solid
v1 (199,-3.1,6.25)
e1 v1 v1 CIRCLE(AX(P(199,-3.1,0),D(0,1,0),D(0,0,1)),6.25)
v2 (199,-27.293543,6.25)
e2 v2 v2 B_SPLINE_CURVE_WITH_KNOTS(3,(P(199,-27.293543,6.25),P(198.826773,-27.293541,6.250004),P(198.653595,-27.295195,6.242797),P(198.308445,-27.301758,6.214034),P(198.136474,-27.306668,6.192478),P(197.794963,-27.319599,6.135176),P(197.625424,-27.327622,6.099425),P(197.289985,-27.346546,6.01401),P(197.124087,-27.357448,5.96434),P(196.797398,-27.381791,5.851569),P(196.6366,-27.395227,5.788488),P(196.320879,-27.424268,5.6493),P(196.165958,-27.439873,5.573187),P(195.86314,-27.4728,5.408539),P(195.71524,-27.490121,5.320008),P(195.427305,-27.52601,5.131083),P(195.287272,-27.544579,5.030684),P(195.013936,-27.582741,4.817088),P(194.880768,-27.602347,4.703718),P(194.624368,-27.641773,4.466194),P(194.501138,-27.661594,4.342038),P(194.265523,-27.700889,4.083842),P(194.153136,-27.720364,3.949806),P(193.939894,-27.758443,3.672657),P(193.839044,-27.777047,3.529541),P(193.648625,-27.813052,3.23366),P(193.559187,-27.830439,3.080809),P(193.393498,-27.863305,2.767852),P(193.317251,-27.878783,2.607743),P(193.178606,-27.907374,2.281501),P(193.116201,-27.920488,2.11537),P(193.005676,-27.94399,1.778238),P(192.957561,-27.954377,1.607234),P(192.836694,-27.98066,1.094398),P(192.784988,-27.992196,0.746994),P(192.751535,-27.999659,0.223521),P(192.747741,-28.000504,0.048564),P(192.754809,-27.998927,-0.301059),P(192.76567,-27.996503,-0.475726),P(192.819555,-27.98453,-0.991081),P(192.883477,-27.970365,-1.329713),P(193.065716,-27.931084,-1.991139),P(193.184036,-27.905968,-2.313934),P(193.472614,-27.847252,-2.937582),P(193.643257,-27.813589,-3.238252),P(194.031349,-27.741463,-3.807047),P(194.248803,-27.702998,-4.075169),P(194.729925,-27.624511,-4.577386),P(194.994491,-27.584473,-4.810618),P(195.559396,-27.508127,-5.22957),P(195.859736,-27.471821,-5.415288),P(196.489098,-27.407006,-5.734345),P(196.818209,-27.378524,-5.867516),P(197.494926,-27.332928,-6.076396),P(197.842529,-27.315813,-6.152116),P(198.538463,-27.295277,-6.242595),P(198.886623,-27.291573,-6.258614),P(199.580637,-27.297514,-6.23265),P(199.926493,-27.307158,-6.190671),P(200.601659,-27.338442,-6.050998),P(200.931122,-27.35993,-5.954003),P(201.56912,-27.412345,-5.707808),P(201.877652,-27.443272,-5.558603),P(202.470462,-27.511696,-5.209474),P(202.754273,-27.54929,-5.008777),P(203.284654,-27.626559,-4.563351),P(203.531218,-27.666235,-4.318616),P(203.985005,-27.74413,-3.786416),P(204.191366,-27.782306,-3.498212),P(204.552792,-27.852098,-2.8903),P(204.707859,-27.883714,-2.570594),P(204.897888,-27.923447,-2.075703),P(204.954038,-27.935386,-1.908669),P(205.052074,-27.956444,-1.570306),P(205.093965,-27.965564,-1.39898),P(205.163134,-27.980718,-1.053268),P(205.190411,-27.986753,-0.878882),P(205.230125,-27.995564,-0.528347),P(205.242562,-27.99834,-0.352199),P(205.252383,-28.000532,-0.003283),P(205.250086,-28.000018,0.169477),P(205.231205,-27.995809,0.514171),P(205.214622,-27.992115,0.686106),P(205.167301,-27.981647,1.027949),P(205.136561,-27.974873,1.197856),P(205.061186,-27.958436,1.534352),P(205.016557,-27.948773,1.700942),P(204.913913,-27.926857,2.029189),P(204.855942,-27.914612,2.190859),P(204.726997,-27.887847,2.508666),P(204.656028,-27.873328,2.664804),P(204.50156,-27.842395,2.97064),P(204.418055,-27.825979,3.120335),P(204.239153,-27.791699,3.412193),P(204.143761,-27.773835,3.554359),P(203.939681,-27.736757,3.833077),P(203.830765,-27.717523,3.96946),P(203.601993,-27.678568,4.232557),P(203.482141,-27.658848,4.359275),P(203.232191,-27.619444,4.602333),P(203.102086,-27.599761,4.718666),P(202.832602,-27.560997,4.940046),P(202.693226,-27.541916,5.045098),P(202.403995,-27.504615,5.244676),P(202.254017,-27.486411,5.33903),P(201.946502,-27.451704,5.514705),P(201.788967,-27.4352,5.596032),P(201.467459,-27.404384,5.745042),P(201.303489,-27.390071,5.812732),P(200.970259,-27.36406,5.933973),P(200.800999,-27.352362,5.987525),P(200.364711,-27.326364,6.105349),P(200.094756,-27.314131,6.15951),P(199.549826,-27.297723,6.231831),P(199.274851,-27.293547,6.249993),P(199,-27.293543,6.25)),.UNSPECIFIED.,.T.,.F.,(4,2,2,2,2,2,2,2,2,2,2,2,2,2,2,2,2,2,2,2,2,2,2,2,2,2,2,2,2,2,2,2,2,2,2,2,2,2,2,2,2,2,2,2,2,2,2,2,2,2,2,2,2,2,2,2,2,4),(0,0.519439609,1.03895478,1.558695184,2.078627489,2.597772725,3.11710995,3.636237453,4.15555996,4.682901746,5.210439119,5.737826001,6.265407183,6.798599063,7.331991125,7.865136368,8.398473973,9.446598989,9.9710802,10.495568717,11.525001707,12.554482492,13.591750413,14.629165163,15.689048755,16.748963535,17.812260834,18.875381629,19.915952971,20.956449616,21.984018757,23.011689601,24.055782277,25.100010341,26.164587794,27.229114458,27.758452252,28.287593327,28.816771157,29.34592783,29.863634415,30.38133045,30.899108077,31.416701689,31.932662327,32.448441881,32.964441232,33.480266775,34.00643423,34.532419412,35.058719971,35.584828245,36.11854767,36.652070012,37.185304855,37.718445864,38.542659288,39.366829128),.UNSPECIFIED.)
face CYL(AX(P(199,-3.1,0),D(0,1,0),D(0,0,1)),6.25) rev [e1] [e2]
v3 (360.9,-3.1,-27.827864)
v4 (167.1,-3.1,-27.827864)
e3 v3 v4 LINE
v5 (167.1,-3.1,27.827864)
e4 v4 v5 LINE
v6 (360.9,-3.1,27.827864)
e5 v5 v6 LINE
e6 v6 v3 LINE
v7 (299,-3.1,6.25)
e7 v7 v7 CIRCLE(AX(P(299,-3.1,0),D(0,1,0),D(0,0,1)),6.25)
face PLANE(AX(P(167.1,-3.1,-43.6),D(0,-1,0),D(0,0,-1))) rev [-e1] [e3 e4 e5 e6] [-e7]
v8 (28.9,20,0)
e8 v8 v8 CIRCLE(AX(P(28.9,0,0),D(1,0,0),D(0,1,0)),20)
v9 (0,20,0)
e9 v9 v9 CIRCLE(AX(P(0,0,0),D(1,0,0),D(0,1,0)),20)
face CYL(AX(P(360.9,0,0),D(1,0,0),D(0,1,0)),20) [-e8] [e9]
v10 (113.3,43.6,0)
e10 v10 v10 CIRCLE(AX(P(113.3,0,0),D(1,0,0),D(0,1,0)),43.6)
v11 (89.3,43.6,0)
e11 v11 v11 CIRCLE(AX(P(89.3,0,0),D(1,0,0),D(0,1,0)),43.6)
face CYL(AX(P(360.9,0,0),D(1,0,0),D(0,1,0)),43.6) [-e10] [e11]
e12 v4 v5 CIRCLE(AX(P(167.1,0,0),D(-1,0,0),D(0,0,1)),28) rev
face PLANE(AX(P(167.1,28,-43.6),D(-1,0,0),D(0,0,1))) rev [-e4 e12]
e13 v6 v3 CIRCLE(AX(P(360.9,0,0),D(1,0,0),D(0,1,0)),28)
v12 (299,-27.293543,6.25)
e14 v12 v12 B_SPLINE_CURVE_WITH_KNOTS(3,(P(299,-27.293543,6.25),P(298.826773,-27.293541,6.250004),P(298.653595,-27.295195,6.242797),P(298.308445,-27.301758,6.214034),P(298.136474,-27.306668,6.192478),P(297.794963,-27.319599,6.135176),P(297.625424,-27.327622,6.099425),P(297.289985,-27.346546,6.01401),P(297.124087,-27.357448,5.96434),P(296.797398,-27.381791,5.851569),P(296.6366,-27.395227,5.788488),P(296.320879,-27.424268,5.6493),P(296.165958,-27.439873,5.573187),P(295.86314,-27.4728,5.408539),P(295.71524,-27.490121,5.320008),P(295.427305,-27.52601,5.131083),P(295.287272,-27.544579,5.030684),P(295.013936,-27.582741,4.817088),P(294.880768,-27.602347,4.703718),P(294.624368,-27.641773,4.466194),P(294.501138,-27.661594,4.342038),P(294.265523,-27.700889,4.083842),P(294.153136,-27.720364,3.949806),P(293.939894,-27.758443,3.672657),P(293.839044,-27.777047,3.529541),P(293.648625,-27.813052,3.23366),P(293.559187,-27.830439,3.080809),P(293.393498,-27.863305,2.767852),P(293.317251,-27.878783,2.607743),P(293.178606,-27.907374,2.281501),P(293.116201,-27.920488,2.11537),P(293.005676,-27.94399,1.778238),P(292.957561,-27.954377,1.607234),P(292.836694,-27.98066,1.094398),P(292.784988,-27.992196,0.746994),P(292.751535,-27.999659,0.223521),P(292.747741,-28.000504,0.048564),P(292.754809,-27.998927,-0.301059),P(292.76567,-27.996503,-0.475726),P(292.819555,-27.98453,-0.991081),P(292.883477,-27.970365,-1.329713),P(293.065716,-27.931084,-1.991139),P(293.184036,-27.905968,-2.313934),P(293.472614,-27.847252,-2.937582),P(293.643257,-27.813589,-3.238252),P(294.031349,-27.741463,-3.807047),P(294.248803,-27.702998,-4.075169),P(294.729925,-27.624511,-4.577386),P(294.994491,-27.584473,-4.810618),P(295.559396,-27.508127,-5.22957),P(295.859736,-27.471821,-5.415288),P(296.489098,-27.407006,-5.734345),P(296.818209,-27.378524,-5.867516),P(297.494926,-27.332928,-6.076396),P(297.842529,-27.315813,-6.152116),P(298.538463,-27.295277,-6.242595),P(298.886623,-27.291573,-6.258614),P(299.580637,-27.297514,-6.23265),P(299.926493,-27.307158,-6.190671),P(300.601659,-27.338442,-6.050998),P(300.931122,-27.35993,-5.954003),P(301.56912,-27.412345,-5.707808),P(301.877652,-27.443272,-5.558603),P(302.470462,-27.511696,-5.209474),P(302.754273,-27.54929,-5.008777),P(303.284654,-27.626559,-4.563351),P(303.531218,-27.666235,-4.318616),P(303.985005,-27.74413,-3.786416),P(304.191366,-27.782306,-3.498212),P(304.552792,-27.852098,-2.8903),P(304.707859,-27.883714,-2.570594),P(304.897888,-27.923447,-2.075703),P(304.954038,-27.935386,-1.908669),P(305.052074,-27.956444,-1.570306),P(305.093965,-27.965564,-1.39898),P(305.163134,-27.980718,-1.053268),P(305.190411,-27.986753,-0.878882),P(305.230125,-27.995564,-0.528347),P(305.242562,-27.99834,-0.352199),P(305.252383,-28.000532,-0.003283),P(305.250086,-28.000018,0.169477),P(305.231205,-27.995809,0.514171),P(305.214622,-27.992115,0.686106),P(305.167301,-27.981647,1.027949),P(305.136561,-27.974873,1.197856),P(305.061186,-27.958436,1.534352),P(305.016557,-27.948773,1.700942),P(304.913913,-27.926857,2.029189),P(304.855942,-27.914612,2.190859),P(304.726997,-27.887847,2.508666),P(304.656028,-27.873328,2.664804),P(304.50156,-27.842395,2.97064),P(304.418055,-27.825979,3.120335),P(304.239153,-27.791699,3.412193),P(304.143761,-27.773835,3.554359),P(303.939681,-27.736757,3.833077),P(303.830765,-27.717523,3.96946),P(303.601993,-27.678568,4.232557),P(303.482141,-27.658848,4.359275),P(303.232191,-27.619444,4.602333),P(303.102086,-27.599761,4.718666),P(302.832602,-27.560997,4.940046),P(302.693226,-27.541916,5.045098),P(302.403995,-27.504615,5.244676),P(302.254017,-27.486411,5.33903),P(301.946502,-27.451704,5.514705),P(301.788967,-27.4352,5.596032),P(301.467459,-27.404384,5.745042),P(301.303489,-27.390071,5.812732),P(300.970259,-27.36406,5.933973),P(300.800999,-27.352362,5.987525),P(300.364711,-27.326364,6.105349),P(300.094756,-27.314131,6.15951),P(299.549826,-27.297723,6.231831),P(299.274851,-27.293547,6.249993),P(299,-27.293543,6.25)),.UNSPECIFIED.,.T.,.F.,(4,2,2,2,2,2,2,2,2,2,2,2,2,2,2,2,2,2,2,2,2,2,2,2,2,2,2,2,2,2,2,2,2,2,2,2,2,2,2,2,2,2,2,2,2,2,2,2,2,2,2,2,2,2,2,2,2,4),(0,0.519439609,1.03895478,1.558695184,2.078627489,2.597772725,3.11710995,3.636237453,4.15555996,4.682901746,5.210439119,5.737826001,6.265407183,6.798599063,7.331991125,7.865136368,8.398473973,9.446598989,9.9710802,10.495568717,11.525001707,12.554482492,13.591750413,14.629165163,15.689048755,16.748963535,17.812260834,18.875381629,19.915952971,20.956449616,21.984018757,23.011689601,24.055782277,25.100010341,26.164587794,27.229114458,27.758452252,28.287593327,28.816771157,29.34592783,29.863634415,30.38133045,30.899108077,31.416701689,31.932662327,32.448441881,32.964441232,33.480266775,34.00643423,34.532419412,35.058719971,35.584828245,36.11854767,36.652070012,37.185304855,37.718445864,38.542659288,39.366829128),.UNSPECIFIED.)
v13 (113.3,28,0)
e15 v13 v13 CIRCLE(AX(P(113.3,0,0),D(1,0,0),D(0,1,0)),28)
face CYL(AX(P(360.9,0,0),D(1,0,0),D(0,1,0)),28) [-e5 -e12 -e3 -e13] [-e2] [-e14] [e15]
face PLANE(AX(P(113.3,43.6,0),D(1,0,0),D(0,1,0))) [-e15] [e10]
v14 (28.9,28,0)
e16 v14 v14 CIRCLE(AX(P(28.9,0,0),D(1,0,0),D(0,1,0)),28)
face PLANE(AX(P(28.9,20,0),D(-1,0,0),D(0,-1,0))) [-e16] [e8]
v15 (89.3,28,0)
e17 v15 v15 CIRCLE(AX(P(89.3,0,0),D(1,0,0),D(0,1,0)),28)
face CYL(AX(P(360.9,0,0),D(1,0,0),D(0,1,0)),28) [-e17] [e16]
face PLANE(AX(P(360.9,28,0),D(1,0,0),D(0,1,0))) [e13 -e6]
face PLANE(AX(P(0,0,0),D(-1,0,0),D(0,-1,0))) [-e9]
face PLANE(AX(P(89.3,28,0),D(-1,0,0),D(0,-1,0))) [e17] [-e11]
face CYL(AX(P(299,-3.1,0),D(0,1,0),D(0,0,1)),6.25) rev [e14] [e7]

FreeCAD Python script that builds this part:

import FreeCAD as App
import Part
import Sketcher
from FreeCAD import Vector


def add_polygon(sketch, points):
    """Adds a closed chain of lines whose ends are joined by coincident constraints."""
    first, n = sketch.GeometryCount, len(points)
    for a, b in zip(points, points[1:] + points[:1]):
        sketch.addGeometry(Part.LineSegment(App.Vector(*a, 0), App.Vector(*b, 0)), False)
    for i in range(n):
        sketch.addConstraint(Sketcher.Constraint("Coincident", first + i, 2, first + (i + 1) % n, 1))

doc = App.newDocument("Part")
body = doc.addObject("PartDesign::Body", "Body")

sketch1 = doc.addObject("Sketcher::SketchObject", "Sketch")
body.addObject(sketch1)
sketch1.AttachmentSupport = (doc.XY_Plane, [""])
sketch1.MapMode = "FlatFace"
add_polygon(sketch1, [(0, 20), (0, 0), (361, 0), (361, 28), (113, 28), (113, 44), (89, 44), (89, 28), (29, 28), (29, 20)])
sketch1.addConstraint(Sketcher.Constraint("Vertical", 0))
sketch1.addConstraint(Sketcher.Constraint("Horizontal", 1))
sketch1.addConstraint(Sketcher.Constraint("Vertical", 2))
sketch1.addConstraint(Sketcher.Constraint("Horizontal", 3))
sketch1.addConstraint(Sketcher.Constraint("Vertical", 4))
sketch1.addConstraint(Sketcher.Constraint("Horizontal", 5))
sketch1.addConstraint(Sketcher.Constraint("Vertical", 6))
sketch1.addConstraint(Sketcher.Constraint("Horizontal", 7))
sketch1.addConstraint(Sketcher.Constraint("Vertical", 8))
sketch1.addConstraint(Sketcher.Constraint("Horizontal", 9))
sketch1.addConstraint(Sketcher.Constraint("Coincident", 0, 2, -1, 1))
sketch1.addConstraint(Sketcher.Constraint("Horizontal", 3, 2, 6, 2))
sketch1.addConstraint(Sketcher.Constraint("DistanceX", 5, 2, 5, 1, 24.0))
sketch1.addConstraint(Sketcher.Constraint("DistanceY", 0, 2, 0, 1, 20.0))
sketch1.addConstraint(Sketcher.Constraint("DistanceY", 2, 1, 2, 2, 28.0))
sketch1.addConstraint(Sketcher.Constraint("DistanceX", 1, 1, 1, 2, 360.9))
sketch1.addConstraint(Sketcher.Constraint("DistanceX", 3, 2, 3, 1, 247.6))
sketch1.addConstraint(Sketcher.Constraint("DistanceX", 7, 2, 7, 1, 60.4))
sketch1.addConstraint(Sketcher.Constraint("DistanceY", 4, 1, 4, 2, 15.6))
revolution = doc.addObject("PartDesign::Revolution", "Revolution")
body.addObject(revolution)
revolution.Profile = sketch1
revolution.ReferenceAxis = (sketch1, ["H_Axis"])
revolution.Angle = 360

sketch2 = doc.addObject("Sketcher::SketchObject", "Sketch001")
body.addObject(sketch2)
sketch2.AttachmentSupport = (doc.XY_Plane, [""])
sketch2.MapMode = "FlatFace"
add_polygon(sketch2, [(167, 28), (167, -3), (361, -3), (361, 28)])
sketch2.addConstraint(Sketcher.Constraint("Vertical", 0))
sketch2.addConstraint(Sketcher.Constraint("Horizontal", 1))
sketch2.addConstraint(Sketcher.Constraint("Vertical", 2))
sketch2.addConstraint(Sketcher.Constraint("Horizontal", 3))
sketch2.addConstraint(Sketcher.Constraint("DistanceX", 1, 1, 1, 2, 193.8))
sketch2.addConstraint(Sketcher.Constraint("DistanceY", 0, 2, 0, 1, 31.1))
sketch2.addConstraint(Sketcher.Constraint("DistanceY", -1, 1, 2, 2, 28.0))
sketch2.addConstraint(Sketcher.Constraint("DistanceX", -1, 1, 0, 2, 167.1))
pocket1 = doc.addObject("PartDesign::Pocket", "Pocket")
body.addObject(pocket1)
pocket1.Profile = sketch2
pocket1.Type = "ThroughAll"
pocket1.Midplane = True

sketch3 = doc.addObject("Sketcher::SketchObject", "Sketch002")
body.addObject(sketch3)
sketch3.AttachmentSupport = (doc.XZ_Plane, [""])
sketch3.MapMode = "FlatFace"
sketch3.AttachmentOffset = App.Placement(Vector(0, 0, 3.1), App.Rotation())
sketch3.addGeometry(Part.Circle(Vector(199, 0, 0), Vector(0, 0, 1), 6), False)
sketch3.addGeometry(Part.Circle(Vector(299, 0, 0), Vector(0, 0, 1), 6), False)
sketch3.addConstraint(Sketcher.Constraint("Equal", 0, 1))
sketch3.addConstraint(Sketcher.Constraint("PointOnObject", 0, 3, -1))
sketch3.addConstraint(Sketcher.Constraint("PointOnObject", 1, 3, -1))
sketch3.addConstraint(Sketcher.Constraint("Diameter", 0, 12.5))
sketch3.addConstraint(Sketcher.Constraint("DistanceX", -1, 1, 0, 3, 199.0))
sketch3.addConstraint(Sketcher.Constraint("DistanceX", -1, 1, 1, 3, 299.0))
doc.recompute()
hole = doc.addObject("PartDesign::Hole", "Hole")
body.addObject(hole)
hole.Profile = sketch3
hole.ThreadType = "None"
hole.Diameter = 12.5
hole.DepthType = "ThroughAll"
hole.Reversed = True

doc.recompute()
